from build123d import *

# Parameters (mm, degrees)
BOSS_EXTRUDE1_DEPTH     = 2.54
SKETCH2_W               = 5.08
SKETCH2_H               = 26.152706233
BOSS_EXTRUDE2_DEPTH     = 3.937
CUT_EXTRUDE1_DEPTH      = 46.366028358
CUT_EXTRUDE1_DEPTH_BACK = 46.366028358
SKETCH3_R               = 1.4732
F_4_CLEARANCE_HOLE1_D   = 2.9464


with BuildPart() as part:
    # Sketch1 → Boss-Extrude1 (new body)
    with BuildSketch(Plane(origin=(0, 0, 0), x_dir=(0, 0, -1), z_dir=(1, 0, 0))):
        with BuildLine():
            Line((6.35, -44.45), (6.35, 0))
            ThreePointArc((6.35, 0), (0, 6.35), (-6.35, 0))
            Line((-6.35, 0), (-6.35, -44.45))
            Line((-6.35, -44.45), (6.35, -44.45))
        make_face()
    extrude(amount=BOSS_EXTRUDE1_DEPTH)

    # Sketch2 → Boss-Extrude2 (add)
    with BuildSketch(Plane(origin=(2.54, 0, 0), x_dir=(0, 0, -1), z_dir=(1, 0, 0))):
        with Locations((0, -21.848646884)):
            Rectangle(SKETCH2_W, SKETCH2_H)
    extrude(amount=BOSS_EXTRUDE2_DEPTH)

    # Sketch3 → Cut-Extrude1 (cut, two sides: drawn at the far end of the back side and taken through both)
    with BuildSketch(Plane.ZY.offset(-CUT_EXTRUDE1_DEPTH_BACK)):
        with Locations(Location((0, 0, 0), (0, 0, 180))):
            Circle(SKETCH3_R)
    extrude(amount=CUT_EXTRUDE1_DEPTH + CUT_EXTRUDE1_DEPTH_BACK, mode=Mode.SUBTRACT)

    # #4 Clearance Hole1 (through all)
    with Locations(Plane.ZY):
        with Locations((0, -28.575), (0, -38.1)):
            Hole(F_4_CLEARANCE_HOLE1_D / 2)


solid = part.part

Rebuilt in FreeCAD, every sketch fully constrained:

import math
import FreeCAD as App
import Part
import Sketcher
from FreeCAD import Vector
Q = App.Units.Quantity

doc = App.newDocument("Part")
body = doc.addObject("PartDesign::Body", "Body")

# Sketch on YZ plane
sketch1 = body.newObject("Sketcher::SketchObject", "Sketch")
sketch1.AttachmentSupport = (doc.getObject("YZ_Plane"), [""])
sketch1.MapMode = "FlatFace"
sketch1.addGeometry(Part.LineSegment(Vector(-44, -6, 0), Vector(0, -6, 0)), False)
sketch1.addGeometry(Part.ArcOfCircle(Part.Circle(Vector(0, 0, 0), Vector(0, 0, 1), 6), math.radians(-90), math.radians(90)), False)
sketch1.addGeometry(Part.LineSegment(Vector(0, 6, 0), Vector(-44, 6, 0)), False)
sketch1.addGeometry(Part.LineSegment(Vector(-44, 6, 0), Vector(-44, -6, 0)), False)
sketch1.addConstraint(Sketcher.Constraint("Tangent", 0, 2, 1, 1))
sketch1.addConstraint(Sketcher.Constraint("Tangent", 1, 2, 2, 1))
sketch1.addConstraint(Sketcher.Constraint("Coincident", 2, 2, 3, 1))
sketch1.addConstraint(Sketcher.Constraint("Coincident", 3, 2, 0, 1))
sketch1.addConstraint(Sketcher.Constraint("Horizontal", 0))
sketch1.addConstraint(Sketcher.Constraint("Horizontal", 2))
sketch1.addConstraint(Sketcher.Constraint("Vertical", 3))
sketch1.addConstraint(Sketcher.Constraint("Coincident", 1, 3, -1, 1))
sketch1.addConstraint(Sketcher.Constraint("Radius", 1, Q("0.25 in")))
sketch1.addConstraint(Sketcher.Constraint("DistanceX", 0, 1, 0, 2, Q("1.75 in")))
pad1 = body.newObject("PartDesign::Pad", "Pad")
pad1.Profile = sketch1
pad1.Length = Q("0.1 in")

# Sketch on YZ plane
sketch2 = body.newObject("Sketcher::SketchObject", "Sketch001")
sketch2.AttachmentSupport = (doc.getObject("YZ_Plane"), [""])
sketch2.MapMode = "FlatFace"
sketch2.AttachmentOffset = App.Placement(Vector(0, 0, 0.1 * 25.4), App.Rotation())
sketch2.addGeometry(Part.LineSegment(Vector(-9, 3, 0), Vector(-35, 3, 0)), False)
sketch2.addGeometry(Part.LineSegment(Vector(-35, 3, 0), Vector(-35, -3, 0)), False)
sketch2.addGeometry(Part.LineSegment(Vector(-35, -3, 0), Vector(-9, -3, 0)), False)
sketch2.addGeometry(Part.LineSegment(Vector(-9, -3, 0), Vector(-9, 3, 0)), False)
sketch2.addConstraint(Sketcher.Constraint("Coincident", 0, 2, 1, 1))
sketch2.addConstraint(Sketcher.Constraint("Coincident", 1, 2, 2, 1))
sketch2.addConstraint(Sketcher.Constraint("Coincident", 2, 2, 3, 1))
sketch2.addConstraint(Sketcher.Constraint("Coincident", 3, 2, 0, 1))
sketch2.addConstraint(Sketcher.Constraint("Horizontal", 0))
sketch2.addConstraint(Sketcher.Constraint("Vertical", 1))
sketch2.addConstraint(Sketcher.Constraint("Horizontal", 2))
sketch2.addConstraint(Sketcher.Constraint("Vertical", 3))
sketch2.addConstraint(Sketcher.Constraint("DistanceY", 1, 2, 1, 1, Q("0.2 in")))
sketch2.addConstraint(Sketcher.Constraint("DistanceY", -1, 1, 0, 2, Q("0.1 in")))
sketch2.addConstraint(Sketcher.Constraint("DistanceX", 0, 2, -1, 1, Q("1.375 in")))
sketch2.addConstraint(Sketcher.Constraint("DistanceX", 0, 2, 0, 1, 26.152706))
pad2 = body.newObject("PartDesign::Pad", "Pad001")
pad2.Profile = sketch2
pad2.Length = Q("0.155 in")

# Sketch on YZ plane
sketch3 = body.newObject("Sketcher::SketchObject", "Sketch002")
sketch3.AttachmentSupport = (doc.getObject("YZ_Plane"), [""])
sketch3.MapMode = "FlatFace"
sketch3.addGeometry(Part.Circle(Vector(0, 0, 0), Vector(0, 0, 1), 1.5), False)
sketch3.addConstraint(Sketcher.Constraint("Coincident", 0, 3, -1, 1))
sketch3.addConstraint(Sketcher.Constraint("Diameter", 0, Q("0.116 in")))
pocket1 = body.newObject("PartDesign::Pocket", "Pocket")
pocket1.Profile = sketch3
pocket1.Type = "ThroughAll"
pocket1.Midplane = True

# Sketch on YZ plane
sketch4 = body.newObject("Sketcher::SketchObject", "Sketch003")
sketch4.AttachmentSupport = (doc.getObject("YZ_Plane"), [""])
sketch4.MapMode = "FlatFace"
sketch4.addGeometry(Part.Circle(Vector(-28.6, 0, 0), Vector(0, 0, 1), 1.5), False)
sketch4.addGeometry(Part.Circle(Vector(-38.1, 0, 0), Vector(0, 0, 1), 1.5), False)
sketch4.addConstraint(Sketcher.Constraint("Equal", 0, 1))
sketch4.addConstraint(Sketcher.Constraint("PointOnObject", 0, 3, -1))
sketch4.addConstraint(Sketcher.Constraint("PointOnObject", 1, 3, -1))
sketch4.addConstraint(Sketcher.Constraint("Diameter", 0, Q("0.116 in")))
sketch4.addConstraint(Sketcher.Constraint("DistanceX", 1, 3, -1, 1, Q("1.5 in")))
sketch4.addConstraint(Sketcher.Constraint("DistanceX", 0, 3, -1, 1, Q("1.125 in")))
doc.recompute()
hole = body.newObject("PartDesign::Hole", "Hole")
hole.Profile = sketch4
hole.ThreadType = "None"
hole.Diameter = Q("0.116 in")
hole.DepthType = "ThroughAll"
hole.Reversed = True

doc.recompute()
